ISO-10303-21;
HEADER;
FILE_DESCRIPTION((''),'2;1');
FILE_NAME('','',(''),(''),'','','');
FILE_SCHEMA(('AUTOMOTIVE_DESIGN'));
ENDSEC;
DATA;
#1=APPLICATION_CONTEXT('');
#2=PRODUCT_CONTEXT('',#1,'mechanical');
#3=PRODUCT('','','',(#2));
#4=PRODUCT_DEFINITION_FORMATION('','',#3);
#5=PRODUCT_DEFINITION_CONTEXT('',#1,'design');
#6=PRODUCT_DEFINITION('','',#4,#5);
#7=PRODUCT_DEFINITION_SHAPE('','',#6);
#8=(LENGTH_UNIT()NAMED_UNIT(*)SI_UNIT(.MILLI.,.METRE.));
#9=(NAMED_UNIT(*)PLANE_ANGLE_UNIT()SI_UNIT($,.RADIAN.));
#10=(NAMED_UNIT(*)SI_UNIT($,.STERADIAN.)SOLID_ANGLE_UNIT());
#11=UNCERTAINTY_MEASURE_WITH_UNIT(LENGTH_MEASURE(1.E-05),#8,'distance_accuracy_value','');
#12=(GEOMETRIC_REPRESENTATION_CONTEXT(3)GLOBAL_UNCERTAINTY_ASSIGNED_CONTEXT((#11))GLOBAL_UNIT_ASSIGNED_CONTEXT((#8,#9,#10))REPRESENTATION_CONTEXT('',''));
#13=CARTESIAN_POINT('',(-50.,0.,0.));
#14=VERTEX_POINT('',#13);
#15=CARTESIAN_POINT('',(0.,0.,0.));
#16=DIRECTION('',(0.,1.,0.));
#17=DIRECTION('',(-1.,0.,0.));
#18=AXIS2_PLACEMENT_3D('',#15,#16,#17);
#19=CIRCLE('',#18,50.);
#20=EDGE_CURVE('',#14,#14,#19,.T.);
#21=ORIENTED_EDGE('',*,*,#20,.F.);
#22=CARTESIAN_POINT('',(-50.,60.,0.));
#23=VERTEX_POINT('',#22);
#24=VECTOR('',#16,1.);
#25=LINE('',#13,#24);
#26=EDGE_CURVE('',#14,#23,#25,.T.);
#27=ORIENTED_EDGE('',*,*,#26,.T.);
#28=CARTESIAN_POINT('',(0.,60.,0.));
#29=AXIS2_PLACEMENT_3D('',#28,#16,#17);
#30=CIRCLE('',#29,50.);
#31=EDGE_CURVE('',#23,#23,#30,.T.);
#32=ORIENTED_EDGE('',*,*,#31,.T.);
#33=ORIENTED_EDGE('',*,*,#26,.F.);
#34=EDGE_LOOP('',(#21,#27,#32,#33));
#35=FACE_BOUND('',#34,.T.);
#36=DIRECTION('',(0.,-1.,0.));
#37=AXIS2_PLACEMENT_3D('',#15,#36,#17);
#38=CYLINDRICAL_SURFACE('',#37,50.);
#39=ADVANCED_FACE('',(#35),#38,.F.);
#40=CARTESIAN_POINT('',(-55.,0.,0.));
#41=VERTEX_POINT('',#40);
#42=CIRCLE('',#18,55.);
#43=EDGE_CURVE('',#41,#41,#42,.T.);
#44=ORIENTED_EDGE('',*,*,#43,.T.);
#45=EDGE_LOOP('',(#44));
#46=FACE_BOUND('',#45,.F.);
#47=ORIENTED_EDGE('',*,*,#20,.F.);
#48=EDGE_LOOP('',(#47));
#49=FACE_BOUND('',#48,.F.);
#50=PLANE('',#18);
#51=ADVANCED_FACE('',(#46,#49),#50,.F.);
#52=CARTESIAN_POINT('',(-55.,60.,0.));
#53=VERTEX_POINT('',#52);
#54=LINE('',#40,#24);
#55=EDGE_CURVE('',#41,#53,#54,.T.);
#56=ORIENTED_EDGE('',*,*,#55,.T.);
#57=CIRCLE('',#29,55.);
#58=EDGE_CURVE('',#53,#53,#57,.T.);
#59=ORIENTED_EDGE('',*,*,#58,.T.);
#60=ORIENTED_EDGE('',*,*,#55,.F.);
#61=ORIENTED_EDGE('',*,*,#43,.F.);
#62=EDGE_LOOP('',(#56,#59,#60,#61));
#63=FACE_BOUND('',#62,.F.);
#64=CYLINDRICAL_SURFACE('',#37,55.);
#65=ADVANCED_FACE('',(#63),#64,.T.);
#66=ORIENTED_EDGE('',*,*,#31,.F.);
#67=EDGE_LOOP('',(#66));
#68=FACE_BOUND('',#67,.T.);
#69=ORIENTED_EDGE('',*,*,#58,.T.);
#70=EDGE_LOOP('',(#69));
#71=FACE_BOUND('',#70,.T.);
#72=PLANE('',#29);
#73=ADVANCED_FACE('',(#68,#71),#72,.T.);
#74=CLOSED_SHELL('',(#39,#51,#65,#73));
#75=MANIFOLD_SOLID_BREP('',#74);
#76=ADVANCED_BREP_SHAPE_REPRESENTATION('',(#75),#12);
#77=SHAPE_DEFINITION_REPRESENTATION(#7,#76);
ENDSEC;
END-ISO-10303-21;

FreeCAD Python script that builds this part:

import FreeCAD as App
import Part
import Sketcher

V = App.Vector
Q = App.Units.Quantity

doc = App.newDocument("Part")
body = doc.addObject("PartDesign::Body", "Body")

sketch1 = doc.addObject("Sketcher::SketchObject", "Sketch")
body.addObject(sketch1)
sketch1.AttachmentSupport = (doc.XZ_Plane, [""])
sketch1.MapMode = "FlatFace"
sketch1.addGeometry([
    Part.Circle(V(0, 0, 0), V(0, 0, 1), 55),
    Part.Circle(V(0, 0, 0), V(0, 0, 1), 50),
], False)
sketch1.addConstraint([
    Sketcher.Constraint("Coincident", 0, 3, -1, 1),
    Sketcher.Constraint("Coincident", 1, 3, -1, 1),
    Sketcher.Constraint("Diameter", 1, Q("3.937 in")),
    Sketcher.Constraint("Diameter", 0, Q("4.3307 in")),
])
pad1 = doc.addObject("PartDesign::Pad", "Pad")
body.addObject(pad1)
pad1.Profile = sketch1
pad1.Length = Q("2.3622047 in")
pad1.Reversed = True

doc.recompute()
